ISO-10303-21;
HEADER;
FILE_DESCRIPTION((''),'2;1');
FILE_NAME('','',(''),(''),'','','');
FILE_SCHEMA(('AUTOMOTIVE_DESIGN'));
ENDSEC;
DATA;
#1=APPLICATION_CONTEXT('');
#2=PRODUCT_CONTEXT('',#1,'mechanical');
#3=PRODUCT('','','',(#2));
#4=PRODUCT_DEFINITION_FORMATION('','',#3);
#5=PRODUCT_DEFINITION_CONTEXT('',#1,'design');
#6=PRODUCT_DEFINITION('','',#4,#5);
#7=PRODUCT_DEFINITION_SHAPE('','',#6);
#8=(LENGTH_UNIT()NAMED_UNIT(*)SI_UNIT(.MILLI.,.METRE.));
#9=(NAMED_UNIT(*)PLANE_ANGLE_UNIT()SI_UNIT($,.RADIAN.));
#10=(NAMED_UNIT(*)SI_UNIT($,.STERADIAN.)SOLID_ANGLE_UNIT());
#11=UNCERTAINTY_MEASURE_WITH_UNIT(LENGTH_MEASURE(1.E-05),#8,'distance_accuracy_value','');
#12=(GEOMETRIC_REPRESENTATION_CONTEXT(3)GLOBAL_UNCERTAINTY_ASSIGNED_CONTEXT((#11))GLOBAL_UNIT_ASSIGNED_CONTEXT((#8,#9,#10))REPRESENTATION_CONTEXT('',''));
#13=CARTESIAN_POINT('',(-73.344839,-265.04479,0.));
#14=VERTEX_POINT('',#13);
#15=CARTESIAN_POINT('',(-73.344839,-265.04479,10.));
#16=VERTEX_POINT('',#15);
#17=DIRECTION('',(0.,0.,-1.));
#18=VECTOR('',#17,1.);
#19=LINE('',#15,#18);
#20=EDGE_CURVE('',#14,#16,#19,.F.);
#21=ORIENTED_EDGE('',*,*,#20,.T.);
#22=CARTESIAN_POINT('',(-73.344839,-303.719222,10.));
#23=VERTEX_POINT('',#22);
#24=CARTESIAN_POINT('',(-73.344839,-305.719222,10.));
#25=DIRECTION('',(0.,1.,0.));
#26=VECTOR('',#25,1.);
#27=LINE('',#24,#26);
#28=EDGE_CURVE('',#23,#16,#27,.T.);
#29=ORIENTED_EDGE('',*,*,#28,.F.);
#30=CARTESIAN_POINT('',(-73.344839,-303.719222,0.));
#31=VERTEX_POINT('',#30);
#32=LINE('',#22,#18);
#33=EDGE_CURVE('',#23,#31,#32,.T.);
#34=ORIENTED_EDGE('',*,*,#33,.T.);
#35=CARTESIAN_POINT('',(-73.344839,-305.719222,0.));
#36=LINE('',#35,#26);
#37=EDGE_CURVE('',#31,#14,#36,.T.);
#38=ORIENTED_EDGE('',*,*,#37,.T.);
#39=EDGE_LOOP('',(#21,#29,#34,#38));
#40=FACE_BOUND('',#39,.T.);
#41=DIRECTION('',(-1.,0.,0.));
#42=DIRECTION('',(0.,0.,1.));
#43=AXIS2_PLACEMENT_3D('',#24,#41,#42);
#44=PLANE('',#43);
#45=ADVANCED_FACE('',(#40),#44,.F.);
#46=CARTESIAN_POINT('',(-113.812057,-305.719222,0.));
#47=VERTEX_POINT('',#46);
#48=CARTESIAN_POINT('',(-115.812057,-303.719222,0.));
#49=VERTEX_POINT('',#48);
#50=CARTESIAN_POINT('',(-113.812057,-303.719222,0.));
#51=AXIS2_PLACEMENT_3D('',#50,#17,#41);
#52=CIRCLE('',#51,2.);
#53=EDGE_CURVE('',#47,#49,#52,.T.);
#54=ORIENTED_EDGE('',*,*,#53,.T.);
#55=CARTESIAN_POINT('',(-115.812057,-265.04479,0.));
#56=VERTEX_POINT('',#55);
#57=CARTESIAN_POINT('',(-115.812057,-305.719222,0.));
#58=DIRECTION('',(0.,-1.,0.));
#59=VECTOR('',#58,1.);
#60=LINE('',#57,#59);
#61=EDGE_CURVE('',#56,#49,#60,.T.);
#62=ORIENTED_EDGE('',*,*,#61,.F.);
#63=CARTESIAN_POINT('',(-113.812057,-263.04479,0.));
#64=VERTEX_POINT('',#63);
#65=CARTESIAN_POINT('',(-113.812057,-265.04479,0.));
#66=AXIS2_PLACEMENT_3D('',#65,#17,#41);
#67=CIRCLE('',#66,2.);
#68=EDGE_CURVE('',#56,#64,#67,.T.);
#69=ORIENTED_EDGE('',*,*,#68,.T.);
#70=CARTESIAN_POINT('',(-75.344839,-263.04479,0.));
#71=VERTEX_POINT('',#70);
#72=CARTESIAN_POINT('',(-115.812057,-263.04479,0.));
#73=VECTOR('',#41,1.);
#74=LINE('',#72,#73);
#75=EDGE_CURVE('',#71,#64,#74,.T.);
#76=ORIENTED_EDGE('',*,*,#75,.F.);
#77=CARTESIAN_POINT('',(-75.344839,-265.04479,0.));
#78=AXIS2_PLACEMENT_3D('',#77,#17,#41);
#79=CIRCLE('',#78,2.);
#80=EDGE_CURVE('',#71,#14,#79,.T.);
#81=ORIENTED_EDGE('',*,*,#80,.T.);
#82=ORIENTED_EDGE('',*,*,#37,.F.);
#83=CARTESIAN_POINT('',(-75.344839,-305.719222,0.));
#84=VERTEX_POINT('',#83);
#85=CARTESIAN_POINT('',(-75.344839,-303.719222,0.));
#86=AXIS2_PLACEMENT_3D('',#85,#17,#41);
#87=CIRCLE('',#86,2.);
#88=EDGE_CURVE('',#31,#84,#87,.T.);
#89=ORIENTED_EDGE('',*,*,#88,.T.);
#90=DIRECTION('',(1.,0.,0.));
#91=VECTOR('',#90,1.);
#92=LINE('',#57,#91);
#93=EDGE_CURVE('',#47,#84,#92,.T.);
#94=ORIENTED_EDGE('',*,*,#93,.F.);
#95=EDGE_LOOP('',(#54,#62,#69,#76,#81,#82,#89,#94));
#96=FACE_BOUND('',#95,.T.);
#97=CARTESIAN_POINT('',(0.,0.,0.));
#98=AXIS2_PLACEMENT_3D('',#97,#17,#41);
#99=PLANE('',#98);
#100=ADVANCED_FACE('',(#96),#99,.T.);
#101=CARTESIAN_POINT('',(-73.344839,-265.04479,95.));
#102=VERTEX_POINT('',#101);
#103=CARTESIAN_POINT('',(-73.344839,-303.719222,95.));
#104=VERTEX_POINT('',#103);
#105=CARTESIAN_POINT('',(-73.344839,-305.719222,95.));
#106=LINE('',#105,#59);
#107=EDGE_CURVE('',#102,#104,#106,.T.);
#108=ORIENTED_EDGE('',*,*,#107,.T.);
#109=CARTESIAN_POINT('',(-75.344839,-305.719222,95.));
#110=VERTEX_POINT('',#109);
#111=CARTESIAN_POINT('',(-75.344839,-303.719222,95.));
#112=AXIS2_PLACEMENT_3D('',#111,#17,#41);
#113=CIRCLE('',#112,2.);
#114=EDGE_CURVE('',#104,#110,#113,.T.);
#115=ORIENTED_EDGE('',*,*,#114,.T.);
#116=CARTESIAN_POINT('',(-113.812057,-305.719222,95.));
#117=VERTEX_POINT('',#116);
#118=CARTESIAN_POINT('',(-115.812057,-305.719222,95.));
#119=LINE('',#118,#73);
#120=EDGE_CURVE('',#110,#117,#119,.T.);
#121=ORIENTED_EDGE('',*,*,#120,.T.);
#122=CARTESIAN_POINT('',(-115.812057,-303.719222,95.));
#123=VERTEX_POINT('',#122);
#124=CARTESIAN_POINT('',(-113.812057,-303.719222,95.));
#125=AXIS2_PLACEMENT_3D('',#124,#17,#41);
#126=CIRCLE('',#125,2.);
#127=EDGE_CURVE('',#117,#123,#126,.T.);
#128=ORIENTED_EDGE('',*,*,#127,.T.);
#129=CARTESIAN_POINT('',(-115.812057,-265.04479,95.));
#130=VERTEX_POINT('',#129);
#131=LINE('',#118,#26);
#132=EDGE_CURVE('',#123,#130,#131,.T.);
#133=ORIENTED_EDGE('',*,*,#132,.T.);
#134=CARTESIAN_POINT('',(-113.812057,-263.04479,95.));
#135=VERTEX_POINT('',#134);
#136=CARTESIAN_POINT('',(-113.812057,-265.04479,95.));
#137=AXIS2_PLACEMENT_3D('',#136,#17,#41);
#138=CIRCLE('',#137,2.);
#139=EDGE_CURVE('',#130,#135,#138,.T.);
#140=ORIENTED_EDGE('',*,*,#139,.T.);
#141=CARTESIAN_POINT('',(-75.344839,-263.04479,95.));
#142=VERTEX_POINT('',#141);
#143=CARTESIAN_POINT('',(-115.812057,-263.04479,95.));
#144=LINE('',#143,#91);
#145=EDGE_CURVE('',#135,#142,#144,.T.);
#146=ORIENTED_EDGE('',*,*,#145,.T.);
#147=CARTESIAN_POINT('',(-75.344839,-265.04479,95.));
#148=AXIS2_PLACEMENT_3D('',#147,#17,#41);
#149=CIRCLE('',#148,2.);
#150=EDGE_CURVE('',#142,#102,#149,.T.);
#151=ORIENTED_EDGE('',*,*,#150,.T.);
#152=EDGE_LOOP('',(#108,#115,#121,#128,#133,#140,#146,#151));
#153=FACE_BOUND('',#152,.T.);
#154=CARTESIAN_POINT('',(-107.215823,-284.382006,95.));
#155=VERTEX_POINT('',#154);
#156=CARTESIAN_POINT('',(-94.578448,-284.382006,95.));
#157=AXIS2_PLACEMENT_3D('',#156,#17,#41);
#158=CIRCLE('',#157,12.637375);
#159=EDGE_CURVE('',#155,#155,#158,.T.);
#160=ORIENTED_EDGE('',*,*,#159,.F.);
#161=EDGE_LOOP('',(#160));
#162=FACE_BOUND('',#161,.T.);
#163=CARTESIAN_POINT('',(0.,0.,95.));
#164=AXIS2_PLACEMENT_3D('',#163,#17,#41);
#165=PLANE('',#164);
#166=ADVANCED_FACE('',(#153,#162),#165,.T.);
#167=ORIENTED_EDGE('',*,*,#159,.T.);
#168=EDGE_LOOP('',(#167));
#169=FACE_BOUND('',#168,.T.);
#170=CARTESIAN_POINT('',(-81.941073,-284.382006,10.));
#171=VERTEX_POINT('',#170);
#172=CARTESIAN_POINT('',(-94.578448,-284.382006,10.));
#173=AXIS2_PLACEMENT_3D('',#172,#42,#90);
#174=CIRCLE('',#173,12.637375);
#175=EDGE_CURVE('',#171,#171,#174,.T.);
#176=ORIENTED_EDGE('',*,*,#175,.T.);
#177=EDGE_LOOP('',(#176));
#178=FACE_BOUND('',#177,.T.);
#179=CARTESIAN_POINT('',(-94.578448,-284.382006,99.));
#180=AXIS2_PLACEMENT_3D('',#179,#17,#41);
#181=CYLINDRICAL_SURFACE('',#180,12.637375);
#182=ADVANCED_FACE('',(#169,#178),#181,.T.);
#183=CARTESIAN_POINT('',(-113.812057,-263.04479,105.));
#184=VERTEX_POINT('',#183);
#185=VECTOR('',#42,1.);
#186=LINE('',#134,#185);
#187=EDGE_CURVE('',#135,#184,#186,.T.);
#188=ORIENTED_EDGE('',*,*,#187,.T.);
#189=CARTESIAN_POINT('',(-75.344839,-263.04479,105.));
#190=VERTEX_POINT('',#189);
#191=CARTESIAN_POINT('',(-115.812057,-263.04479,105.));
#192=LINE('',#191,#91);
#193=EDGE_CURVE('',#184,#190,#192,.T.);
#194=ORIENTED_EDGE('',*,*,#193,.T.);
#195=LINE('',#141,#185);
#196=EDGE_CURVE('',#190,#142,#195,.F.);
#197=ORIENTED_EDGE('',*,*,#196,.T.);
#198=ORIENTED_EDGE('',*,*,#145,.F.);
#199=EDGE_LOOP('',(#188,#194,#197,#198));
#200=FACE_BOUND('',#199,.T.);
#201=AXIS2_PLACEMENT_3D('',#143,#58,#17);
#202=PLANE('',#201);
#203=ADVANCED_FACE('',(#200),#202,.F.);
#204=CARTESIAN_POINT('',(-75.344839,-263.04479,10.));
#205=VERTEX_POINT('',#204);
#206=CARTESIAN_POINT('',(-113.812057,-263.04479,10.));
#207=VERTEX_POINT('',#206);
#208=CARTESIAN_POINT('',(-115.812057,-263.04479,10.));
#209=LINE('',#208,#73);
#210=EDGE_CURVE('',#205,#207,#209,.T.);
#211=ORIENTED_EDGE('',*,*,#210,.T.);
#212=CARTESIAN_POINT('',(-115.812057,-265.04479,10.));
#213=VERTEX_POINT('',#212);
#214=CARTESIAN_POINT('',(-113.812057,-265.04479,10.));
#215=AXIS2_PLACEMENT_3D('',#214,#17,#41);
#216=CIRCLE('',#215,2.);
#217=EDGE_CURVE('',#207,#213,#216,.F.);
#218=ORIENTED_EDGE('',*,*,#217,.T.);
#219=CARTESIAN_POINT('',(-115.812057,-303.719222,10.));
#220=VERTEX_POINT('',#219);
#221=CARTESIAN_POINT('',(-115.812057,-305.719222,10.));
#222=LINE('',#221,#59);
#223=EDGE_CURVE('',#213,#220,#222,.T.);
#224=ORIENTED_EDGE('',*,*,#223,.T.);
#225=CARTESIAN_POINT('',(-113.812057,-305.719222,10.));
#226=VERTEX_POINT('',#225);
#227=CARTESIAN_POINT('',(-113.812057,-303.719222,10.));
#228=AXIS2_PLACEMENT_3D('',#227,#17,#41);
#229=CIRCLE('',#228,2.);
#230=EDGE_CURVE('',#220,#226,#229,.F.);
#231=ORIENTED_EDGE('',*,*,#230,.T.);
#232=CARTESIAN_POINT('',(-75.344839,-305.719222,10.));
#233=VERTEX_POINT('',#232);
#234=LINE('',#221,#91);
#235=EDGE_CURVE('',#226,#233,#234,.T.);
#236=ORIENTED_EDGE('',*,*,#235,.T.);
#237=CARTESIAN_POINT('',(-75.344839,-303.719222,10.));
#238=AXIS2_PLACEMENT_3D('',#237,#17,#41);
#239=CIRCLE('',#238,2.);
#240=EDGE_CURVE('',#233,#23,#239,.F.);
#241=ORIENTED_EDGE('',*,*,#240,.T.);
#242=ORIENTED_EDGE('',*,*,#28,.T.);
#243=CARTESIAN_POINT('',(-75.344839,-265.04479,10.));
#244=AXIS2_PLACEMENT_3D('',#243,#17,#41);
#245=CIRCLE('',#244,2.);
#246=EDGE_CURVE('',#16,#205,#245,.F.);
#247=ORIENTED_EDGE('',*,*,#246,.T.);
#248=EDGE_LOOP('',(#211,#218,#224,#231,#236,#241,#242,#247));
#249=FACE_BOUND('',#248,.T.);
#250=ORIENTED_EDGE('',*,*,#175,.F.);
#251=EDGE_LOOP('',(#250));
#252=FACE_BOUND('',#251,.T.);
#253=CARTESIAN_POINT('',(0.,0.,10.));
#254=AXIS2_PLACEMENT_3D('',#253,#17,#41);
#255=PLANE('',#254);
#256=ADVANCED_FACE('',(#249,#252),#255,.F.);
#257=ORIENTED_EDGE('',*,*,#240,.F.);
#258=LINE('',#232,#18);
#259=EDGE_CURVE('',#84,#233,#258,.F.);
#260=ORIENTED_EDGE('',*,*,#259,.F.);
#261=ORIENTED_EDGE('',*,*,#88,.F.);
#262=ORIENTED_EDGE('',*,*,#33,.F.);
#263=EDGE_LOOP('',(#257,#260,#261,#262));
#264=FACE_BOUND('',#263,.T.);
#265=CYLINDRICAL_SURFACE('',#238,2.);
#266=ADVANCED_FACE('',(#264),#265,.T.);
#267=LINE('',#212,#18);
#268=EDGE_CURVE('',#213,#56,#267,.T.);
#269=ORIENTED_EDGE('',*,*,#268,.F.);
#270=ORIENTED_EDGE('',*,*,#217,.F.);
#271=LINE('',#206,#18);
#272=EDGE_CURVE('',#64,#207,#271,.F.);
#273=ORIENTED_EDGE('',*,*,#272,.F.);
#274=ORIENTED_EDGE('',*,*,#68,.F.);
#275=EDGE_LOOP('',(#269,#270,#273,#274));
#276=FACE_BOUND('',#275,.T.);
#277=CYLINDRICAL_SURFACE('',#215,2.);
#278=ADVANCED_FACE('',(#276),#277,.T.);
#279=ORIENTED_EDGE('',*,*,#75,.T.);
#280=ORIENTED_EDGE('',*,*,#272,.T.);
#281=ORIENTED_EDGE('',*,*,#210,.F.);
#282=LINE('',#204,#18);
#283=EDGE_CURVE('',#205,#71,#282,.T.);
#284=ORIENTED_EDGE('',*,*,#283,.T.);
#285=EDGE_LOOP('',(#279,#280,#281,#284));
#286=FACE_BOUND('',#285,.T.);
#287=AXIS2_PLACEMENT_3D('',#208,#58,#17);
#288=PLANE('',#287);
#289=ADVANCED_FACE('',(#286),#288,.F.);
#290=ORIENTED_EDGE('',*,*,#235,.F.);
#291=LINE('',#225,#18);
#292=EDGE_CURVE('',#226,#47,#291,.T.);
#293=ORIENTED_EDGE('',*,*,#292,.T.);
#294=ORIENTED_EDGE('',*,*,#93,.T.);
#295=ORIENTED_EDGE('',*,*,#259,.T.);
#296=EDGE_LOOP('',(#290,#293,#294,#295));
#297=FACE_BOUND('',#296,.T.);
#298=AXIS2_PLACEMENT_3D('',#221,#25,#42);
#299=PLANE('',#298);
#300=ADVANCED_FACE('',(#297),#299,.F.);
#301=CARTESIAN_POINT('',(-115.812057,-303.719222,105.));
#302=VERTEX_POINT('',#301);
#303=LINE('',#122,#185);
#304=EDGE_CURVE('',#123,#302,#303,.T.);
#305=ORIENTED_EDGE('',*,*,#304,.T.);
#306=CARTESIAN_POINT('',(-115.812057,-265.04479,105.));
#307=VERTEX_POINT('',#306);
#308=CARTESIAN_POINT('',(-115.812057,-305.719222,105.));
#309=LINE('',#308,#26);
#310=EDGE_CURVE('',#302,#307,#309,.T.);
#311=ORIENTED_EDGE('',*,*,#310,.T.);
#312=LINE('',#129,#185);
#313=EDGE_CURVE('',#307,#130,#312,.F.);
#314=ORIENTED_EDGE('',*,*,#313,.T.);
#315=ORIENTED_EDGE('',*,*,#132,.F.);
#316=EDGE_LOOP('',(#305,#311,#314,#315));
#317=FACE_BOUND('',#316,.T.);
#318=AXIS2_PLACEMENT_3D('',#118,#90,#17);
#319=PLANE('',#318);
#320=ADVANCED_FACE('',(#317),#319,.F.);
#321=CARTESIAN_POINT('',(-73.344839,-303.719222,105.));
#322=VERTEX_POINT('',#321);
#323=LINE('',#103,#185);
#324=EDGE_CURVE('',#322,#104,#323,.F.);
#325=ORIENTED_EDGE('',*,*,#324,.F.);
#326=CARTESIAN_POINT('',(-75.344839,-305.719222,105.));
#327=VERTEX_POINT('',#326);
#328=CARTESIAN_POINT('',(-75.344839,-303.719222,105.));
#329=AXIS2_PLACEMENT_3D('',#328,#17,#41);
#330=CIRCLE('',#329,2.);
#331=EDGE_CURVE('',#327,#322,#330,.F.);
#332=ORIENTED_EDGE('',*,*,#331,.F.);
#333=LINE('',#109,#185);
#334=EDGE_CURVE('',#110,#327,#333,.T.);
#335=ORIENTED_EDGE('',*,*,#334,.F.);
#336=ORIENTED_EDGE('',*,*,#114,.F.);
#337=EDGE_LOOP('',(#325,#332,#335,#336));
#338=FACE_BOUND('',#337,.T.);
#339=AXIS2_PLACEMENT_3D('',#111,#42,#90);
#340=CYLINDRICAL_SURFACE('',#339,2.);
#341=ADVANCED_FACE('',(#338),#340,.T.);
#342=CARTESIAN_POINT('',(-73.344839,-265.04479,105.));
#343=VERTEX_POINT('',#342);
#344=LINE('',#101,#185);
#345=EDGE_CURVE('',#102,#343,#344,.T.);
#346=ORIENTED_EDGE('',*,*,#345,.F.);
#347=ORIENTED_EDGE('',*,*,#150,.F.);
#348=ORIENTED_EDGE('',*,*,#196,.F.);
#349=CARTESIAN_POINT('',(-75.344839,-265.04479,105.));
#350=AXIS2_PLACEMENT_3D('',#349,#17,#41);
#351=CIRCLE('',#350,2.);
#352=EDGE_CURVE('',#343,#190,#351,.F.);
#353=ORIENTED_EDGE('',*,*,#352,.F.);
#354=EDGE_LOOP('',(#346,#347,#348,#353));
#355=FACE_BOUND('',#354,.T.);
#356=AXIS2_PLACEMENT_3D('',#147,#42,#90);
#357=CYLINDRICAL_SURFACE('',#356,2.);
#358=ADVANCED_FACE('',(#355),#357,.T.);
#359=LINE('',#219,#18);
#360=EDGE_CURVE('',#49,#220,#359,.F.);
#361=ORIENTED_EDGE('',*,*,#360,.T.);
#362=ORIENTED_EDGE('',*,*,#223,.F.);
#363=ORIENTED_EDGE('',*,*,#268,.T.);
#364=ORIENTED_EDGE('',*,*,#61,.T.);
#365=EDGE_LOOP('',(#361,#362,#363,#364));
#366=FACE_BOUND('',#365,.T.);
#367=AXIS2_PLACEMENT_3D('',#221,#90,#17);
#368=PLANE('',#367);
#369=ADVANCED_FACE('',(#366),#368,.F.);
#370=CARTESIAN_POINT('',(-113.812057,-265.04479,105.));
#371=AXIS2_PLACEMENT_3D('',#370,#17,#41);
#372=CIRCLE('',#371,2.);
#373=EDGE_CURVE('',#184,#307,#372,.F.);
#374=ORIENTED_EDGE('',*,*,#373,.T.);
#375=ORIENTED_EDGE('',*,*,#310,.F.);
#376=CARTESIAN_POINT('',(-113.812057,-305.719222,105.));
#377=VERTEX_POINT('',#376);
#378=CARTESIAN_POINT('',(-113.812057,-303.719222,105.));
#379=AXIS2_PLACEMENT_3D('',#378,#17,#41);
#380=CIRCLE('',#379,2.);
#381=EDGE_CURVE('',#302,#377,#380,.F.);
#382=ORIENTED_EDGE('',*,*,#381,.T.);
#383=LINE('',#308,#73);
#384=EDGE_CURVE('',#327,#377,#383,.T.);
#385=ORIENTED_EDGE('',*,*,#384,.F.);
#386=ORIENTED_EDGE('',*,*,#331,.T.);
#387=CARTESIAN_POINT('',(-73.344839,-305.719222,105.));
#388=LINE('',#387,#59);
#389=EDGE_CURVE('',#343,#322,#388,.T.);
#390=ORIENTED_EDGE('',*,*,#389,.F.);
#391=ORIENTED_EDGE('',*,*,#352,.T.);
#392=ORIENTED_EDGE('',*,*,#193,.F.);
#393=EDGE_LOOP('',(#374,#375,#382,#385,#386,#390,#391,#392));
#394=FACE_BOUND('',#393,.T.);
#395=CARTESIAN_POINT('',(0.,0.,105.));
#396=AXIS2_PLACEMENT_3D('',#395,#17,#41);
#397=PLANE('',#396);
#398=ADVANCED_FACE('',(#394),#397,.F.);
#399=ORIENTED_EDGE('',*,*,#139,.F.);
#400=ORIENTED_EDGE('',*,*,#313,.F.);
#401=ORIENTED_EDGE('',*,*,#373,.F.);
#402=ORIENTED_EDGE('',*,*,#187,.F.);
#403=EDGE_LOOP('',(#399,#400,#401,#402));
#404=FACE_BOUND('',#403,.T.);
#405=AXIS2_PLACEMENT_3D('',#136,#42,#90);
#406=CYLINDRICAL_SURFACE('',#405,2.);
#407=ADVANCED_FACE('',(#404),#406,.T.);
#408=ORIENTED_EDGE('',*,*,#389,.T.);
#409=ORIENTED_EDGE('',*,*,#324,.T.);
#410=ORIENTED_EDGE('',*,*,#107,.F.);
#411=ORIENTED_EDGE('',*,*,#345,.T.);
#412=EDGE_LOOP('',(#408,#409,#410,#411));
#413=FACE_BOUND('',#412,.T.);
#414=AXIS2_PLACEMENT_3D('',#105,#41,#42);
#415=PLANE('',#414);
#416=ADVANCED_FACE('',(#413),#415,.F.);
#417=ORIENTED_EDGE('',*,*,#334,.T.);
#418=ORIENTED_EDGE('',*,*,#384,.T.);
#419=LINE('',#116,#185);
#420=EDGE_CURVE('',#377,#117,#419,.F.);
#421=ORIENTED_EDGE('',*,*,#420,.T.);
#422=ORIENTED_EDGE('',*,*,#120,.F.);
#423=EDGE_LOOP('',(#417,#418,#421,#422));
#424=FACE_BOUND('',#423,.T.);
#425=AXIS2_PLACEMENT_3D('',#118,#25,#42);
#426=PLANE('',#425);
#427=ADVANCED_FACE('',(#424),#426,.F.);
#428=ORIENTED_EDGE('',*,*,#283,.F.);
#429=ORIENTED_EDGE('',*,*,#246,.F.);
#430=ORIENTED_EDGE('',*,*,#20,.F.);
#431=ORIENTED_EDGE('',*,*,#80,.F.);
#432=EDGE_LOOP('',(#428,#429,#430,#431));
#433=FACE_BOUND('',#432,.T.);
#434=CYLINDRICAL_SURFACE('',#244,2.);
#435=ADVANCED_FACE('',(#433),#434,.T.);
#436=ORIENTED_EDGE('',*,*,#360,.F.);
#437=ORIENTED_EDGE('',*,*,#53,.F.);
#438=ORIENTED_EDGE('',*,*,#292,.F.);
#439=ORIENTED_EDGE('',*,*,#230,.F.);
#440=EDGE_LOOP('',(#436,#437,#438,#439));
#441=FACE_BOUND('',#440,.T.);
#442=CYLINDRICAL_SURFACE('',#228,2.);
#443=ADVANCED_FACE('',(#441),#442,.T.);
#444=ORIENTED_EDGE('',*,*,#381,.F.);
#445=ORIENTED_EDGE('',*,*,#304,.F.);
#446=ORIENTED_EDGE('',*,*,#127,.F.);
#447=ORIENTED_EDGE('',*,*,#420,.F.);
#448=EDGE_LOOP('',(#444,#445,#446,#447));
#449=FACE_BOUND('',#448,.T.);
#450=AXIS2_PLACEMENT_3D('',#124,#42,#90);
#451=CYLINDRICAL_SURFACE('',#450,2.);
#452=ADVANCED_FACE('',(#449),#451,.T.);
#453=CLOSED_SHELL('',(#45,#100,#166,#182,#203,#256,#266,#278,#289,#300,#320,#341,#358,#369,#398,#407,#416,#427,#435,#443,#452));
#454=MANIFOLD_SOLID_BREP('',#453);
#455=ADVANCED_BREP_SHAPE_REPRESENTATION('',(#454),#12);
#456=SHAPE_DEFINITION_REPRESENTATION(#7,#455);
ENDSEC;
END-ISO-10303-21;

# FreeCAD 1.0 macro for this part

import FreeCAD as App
import Part
import Sketcher

V = App.Vector
Q = App.Units.Quantity


def edges_at(feature, points):
    """Names of the edges that pass closest to the given points."""
    edges = feature.Shape.Edges
    near = lambda p: min(range(len(edges)), key=lambda i: edges[i].distToShape(Part.Vertex(*p))[0])
    return sorted({f"Edge{near(p) + 1}" for p in points})

doc = App.newDocument("Part")
params = doc.addObject("Spreadsheet::Sheet", "Params")
for row, (alias, value) in enumerate([
    ("pad1_length", "10 mm"),
    ("pad2_length", "89 mm"),
    ("pad3_length", "10 mm"),
    ("fillet_radius", "2 mm"),
], start=1):
    params.set(f"A{row}", alias)
    params.set(f"B{row}", "=" + value)
    params.setAlias(f"B{row}", alias)

body = doc.addObject("PartDesign::Body", "Body")

sketch1 = body.newObject("Sketcher::SketchObject", "Sketch")
sketch1.AttachmentSupport = (doc.getObject("XY_Plane"), [""])
sketch1.MapMode = "FlatFace"
sketch1.addGeometry(Part.LineSegment(V(-116, -263, 0), V(-116, -306, 0)), False)
sketch1.addGeometry(Part.LineSegment(V(-116, -306, 0), V(-73, -306, 0)), False)
sketch1.addGeometry(Part.LineSegment(V(-73, -306, 0), V(-73, -263, 0)), False)
sketch1.addGeometry(Part.LineSegment(V(-73, -263, 0), V(-116, -263, 0)), False)
sketch1.addConstraint(Sketcher.Constraint("Coincident", 0, 2, 1, 1))
sketch1.addConstraint(Sketcher.Constraint("Coincident", 1, 2, 2, 1))
sketch1.addConstraint(Sketcher.Constraint("Coincident", 2, 2, 3, 1))
sketch1.addConstraint(Sketcher.Constraint("Coincident", 3, 2, 0, 1))
sketch1.addConstraint(Sketcher.Constraint("Vertical", 0))
sketch1.addConstraint(Sketcher.Constraint("Horizontal", 1))
sketch1.addConstraint(Sketcher.Constraint("Vertical", 2))
sketch1.addConstraint(Sketcher.Constraint("Horizontal", 3))
sketch1.addConstraint(Sketcher.Constraint("DistanceX", 1, 1, 1, 2, Q("42.467219 mm")))
sketch1.addConstraint(Sketcher.Constraint("DistanceY", 0, 2, 0, 1, Q("42.674432 mm")))
sketch1.addConstraint(Sketcher.Constraint("DistanceX", 1, 2, -1, 1, Q("73.344839 mm")))
sketch1.addConstraint(Sketcher.Constraint("DistanceY", 2, 2, -1, 1, Q("263.04479 mm")))
pad1 = body.newObject("PartDesign::Pad", "Pad")
pad1.Profile = sketch1
pad1.setExpression("Length", "Params.pad1_length")

sketch2 = body.newObject("Sketcher::SketchObject", "Sketch001")
sketch2.AttachmentSupport = (doc.getObject("XY_Plane"), [""])
sketch2.MapMode = "FlatFace"
sketch2.AttachmentOffset = App.Placement(V(0, 0, 10), App.Rotation())
sketch2.addGeometry(Part.Circle(V(-95, -284, 0), V(0, 0, 1), 13), False)
sketch2.addConstraint(Sketcher.Constraint("Diameter", 0, Q("25.274751 mm")))
sketch2.addConstraint(Sketcher.Constraint("DistanceX", 0, 3, -1, 1, Q("94.578448 mm")))
sketch2.addConstraint(Sketcher.Constraint("DistanceY", 0, 3, -1, 1, Q("284.382006 mm")))
pad2 = body.newObject("PartDesign::Pad", "Pad001")
pad2.Profile = sketch2
pad2.setExpression("Length", "Params.pad2_length")

sketch3 = body.newObject("Sketcher::SketchObject", "Sketch002")
sketch3.AttachmentSupport = (doc.getObject("XY_Plane"), [""])
sketch3.MapMode = "FlatFace"
sketch3.AttachmentOffset = App.Placement(V(0, 0, 105), App.Rotation())
sketch3.addGeometry(Part.LineSegment(V(-73, -263, 0), V(-73, -306, 0)), False)
sketch3.addGeometry(Part.LineSegment(V(-73, -306, 0), V(-116, -306, 0)), False)
sketch3.addGeometry(Part.LineSegment(V(-116, -306, 0), V(-116, -263, 0)), False)
sketch3.addGeometry(Part.LineSegment(V(-116, -263, 0), V(-73, -263, 0)), False)
sketch3.addConstraint(Sketcher.Constraint("Coincident", 0, 2, 1, 1))
sketch3.addConstraint(Sketcher.Constraint("Coincident", 1, 2, 2, 1))
sketch3.addConstraint(Sketcher.Constraint("Coincident", 2, 2, 3, 1))
sketch3.addConstraint(Sketcher.Constraint("Coincident", 3, 2, 0, 1))
sketch3.addConstraint(Sketcher.Constraint("Vertical", 0))
sketch3.addConstraint(Sketcher.Constraint("Horizontal", 1))
sketch3.addConstraint(Sketcher.Constraint("Vertical", 2))
sketch3.addConstraint(Sketcher.Constraint("Horizontal", 3))
sketch3.addConstraint(Sketcher.Constraint("DistanceX", 1, 2, 1, 1, Q("42.467219 mm")))
sketch3.addConstraint(Sketcher.Constraint("DistanceY", 0, 2, 0, 1, Q("42.674432 mm")))
sketch3.addConstraint(Sketcher.Constraint("DistanceX", 0, 2, -1, 1, Q("73.344839 mm")))
sketch3.addConstraint(Sketcher.Constraint("DistanceY", 2, 2, -1, 1, Q("263.04479 mm")))
pad3 = body.newObject("PartDesign::Pad", "Pad002")
pad3.Profile = sketch3
pad3.setExpression("Length", "Params.pad3_length")
pad3.Reversed = True
doc.recompute()

fillet = body.newObject("PartDesign::Fillet", "Fillet")
fillet.Base = (pad3, edges_at(pad3, [
    (-73.345, -263.045, 100),
    (-73.345, -305.719, 100),
    (-115.812, -305.719, 100),
    (-115.812, -263.045, 100),
    (-73.345, -305.719, 5),
    (-115.812, -305.719, 5),
    (-115.812, -263.045, 5),
    (-73.345, -263.045, 5),
]))
fillet.setExpression("Radius", "Params.fillet_radius")

doc.recompute()
